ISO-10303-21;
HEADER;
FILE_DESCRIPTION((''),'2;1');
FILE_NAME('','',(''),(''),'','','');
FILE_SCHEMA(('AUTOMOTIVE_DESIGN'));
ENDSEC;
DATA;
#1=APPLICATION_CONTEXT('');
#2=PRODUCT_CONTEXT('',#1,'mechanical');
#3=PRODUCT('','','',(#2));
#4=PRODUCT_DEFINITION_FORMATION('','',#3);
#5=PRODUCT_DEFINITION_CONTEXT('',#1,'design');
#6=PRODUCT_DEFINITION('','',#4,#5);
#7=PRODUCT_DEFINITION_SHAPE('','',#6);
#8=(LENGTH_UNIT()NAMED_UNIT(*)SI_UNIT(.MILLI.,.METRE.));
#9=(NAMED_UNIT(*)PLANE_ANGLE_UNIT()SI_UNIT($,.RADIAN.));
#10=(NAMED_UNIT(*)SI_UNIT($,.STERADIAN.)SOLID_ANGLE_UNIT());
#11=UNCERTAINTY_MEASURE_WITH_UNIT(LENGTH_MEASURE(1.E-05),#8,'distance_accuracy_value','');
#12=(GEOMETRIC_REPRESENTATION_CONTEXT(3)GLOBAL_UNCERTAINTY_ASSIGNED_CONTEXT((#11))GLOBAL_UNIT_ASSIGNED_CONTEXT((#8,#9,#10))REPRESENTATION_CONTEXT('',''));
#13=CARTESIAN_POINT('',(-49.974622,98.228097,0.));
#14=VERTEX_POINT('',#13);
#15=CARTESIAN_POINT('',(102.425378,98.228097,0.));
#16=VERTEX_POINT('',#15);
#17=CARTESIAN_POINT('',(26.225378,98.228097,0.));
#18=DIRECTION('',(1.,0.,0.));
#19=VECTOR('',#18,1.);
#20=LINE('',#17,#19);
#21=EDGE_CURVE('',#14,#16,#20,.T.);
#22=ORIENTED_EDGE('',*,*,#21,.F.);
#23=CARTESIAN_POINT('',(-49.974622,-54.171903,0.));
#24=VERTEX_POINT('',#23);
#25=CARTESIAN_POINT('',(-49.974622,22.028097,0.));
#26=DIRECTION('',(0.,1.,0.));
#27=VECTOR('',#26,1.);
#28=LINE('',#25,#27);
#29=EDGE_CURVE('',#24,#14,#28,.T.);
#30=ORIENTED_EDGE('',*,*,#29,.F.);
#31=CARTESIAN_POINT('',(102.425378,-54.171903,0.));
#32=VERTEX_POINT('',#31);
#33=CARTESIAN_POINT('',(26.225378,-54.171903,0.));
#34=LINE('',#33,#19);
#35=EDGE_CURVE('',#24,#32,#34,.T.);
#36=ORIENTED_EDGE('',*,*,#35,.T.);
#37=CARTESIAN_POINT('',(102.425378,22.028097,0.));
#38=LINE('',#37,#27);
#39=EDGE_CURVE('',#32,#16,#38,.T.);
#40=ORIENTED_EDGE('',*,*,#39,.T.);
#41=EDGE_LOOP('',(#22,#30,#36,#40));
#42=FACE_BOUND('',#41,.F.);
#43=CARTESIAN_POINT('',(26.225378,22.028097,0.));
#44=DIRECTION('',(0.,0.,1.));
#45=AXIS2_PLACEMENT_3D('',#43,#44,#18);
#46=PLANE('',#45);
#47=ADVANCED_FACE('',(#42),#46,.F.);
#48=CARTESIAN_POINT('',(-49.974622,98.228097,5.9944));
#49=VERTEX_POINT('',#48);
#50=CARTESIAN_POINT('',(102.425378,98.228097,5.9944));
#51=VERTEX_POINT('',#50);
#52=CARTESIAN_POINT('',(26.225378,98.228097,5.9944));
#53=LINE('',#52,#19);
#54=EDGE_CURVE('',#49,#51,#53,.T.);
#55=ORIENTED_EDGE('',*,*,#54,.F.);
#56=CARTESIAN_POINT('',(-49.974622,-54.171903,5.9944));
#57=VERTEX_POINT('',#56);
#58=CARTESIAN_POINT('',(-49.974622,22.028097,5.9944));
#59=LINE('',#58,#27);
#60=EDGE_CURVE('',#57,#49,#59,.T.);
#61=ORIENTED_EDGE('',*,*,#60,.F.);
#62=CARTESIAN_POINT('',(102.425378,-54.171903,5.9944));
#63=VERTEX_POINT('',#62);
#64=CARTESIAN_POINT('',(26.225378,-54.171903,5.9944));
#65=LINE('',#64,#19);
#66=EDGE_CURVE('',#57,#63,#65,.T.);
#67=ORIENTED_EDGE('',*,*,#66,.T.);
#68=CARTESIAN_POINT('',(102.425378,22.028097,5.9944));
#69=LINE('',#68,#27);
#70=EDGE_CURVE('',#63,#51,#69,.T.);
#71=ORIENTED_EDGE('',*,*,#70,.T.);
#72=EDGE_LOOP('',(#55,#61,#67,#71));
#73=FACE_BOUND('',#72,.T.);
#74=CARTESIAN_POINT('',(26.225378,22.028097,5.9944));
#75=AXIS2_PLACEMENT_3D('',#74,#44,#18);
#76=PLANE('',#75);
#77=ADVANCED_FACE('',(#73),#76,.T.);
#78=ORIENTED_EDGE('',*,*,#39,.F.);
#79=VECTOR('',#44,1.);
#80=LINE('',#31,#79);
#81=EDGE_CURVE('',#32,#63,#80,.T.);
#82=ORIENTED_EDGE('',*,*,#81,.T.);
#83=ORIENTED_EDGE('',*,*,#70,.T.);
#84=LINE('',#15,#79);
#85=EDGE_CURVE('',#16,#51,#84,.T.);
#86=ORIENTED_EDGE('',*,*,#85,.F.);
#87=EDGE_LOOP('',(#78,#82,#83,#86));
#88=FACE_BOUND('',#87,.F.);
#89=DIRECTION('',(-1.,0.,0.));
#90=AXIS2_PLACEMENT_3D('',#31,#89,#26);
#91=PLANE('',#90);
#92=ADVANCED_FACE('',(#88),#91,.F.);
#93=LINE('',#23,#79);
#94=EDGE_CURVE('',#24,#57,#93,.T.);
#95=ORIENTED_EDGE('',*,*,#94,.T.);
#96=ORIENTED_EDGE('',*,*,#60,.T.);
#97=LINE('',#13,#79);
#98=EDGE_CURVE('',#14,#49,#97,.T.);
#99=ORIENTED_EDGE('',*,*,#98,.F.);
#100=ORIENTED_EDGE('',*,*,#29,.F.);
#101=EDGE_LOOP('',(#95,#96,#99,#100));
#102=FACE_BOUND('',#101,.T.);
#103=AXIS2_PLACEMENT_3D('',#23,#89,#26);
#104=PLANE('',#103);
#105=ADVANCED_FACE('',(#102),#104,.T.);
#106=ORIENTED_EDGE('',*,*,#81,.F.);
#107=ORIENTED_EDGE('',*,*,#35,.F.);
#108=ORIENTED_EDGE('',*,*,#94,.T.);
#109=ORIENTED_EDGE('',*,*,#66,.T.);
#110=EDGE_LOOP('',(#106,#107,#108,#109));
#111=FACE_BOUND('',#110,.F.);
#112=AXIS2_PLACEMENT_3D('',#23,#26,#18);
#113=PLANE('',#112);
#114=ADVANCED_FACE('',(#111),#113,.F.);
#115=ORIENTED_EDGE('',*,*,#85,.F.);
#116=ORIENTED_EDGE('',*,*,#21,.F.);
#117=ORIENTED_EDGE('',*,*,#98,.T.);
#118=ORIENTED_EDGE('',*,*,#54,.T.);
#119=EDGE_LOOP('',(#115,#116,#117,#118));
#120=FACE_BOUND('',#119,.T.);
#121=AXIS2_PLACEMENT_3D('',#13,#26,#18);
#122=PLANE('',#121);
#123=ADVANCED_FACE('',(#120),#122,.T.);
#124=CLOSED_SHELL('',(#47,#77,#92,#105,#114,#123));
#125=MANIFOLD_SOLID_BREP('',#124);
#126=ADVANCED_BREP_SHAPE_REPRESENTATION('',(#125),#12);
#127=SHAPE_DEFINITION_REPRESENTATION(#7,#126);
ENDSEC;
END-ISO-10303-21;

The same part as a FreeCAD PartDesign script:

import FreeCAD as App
import Part
import Sketcher
from FreeCAD import Vector
Q = App.Units.Quantity

doc = App.newDocument("Part")
params = doc.addObject("Spreadsheet::Sheet", "Params")
for row, (alias, value) in enumerate([
    ("sketch1_width", "6 in"),
    ("pad1_length", "0.236 in"),
], start=1):
    params.set(f"A{row}", alias)
    params.set(f"B{row}", "=" + value)
    params.setAlias(f"B{row}", alias)

body = doc.addObject("PartDesign::Body", "Body")

sketch1 = body.newObject("Sketcher::SketchObject", "Sketch")
sketch1.AttachmentSupport = (doc.getObject("XY_Plane"), [""])
sketch1.MapMode = "FlatFace"
sketch1.addGeometry([
    Part.LineSegment(Vector(-49.974622, 98.228097, 0), Vector(-49.974622, -54.171903, 0)),
    Part.LineSegment(Vector(-49.974622, -54.171903, 0), Vector(102.425378, -54.171903, 0)),
    Part.LineSegment(Vector(102.425378, -54.171903, 0), Vector(102.425378, 98.228097, 0)),
    Part.LineSegment(Vector(102.425378, 98.228097, 0), Vector(-49.974622, 98.228097, 0)),
], False)
sketch1.addConstraint([
    Sketcher.Constraint("Coincident", 0, 2, 1, 1),
    Sketcher.Constraint("Coincident", 1, 2, 2, 1),
    Sketcher.Constraint("Coincident", 2, 2, 3, 1),
    Sketcher.Constraint("Coincident", 3, 2, 0, 1),
    Sketcher.Constraint("Vertical", 0),
    Sketcher.Constraint("Horizontal", 1),
    Sketcher.Constraint("Vertical", 2),
    Sketcher.Constraint("Horizontal", 3),
    Sketcher.Constraint("Equal", 3, 0),
    Sketcher.Constraint("DistanceX", 1, 1, 1, 2, Q("6 in")),
    Sketcher.Constraint("DistanceX", 0, 2, -1, 1, 49.974622),
    Sketcher.Constraint("DistanceY", 0, 2, -1, 1, 54.171903),
])
sketch1.setExpression("Constraints[9]", "Params.sketch1_width")
pad1 = body.newObject("PartDesign::Pad", "Pad")
pad1.Profile = sketch1
pad1.setExpression("Length", "Params.pad1_length")

doc.recompute()
